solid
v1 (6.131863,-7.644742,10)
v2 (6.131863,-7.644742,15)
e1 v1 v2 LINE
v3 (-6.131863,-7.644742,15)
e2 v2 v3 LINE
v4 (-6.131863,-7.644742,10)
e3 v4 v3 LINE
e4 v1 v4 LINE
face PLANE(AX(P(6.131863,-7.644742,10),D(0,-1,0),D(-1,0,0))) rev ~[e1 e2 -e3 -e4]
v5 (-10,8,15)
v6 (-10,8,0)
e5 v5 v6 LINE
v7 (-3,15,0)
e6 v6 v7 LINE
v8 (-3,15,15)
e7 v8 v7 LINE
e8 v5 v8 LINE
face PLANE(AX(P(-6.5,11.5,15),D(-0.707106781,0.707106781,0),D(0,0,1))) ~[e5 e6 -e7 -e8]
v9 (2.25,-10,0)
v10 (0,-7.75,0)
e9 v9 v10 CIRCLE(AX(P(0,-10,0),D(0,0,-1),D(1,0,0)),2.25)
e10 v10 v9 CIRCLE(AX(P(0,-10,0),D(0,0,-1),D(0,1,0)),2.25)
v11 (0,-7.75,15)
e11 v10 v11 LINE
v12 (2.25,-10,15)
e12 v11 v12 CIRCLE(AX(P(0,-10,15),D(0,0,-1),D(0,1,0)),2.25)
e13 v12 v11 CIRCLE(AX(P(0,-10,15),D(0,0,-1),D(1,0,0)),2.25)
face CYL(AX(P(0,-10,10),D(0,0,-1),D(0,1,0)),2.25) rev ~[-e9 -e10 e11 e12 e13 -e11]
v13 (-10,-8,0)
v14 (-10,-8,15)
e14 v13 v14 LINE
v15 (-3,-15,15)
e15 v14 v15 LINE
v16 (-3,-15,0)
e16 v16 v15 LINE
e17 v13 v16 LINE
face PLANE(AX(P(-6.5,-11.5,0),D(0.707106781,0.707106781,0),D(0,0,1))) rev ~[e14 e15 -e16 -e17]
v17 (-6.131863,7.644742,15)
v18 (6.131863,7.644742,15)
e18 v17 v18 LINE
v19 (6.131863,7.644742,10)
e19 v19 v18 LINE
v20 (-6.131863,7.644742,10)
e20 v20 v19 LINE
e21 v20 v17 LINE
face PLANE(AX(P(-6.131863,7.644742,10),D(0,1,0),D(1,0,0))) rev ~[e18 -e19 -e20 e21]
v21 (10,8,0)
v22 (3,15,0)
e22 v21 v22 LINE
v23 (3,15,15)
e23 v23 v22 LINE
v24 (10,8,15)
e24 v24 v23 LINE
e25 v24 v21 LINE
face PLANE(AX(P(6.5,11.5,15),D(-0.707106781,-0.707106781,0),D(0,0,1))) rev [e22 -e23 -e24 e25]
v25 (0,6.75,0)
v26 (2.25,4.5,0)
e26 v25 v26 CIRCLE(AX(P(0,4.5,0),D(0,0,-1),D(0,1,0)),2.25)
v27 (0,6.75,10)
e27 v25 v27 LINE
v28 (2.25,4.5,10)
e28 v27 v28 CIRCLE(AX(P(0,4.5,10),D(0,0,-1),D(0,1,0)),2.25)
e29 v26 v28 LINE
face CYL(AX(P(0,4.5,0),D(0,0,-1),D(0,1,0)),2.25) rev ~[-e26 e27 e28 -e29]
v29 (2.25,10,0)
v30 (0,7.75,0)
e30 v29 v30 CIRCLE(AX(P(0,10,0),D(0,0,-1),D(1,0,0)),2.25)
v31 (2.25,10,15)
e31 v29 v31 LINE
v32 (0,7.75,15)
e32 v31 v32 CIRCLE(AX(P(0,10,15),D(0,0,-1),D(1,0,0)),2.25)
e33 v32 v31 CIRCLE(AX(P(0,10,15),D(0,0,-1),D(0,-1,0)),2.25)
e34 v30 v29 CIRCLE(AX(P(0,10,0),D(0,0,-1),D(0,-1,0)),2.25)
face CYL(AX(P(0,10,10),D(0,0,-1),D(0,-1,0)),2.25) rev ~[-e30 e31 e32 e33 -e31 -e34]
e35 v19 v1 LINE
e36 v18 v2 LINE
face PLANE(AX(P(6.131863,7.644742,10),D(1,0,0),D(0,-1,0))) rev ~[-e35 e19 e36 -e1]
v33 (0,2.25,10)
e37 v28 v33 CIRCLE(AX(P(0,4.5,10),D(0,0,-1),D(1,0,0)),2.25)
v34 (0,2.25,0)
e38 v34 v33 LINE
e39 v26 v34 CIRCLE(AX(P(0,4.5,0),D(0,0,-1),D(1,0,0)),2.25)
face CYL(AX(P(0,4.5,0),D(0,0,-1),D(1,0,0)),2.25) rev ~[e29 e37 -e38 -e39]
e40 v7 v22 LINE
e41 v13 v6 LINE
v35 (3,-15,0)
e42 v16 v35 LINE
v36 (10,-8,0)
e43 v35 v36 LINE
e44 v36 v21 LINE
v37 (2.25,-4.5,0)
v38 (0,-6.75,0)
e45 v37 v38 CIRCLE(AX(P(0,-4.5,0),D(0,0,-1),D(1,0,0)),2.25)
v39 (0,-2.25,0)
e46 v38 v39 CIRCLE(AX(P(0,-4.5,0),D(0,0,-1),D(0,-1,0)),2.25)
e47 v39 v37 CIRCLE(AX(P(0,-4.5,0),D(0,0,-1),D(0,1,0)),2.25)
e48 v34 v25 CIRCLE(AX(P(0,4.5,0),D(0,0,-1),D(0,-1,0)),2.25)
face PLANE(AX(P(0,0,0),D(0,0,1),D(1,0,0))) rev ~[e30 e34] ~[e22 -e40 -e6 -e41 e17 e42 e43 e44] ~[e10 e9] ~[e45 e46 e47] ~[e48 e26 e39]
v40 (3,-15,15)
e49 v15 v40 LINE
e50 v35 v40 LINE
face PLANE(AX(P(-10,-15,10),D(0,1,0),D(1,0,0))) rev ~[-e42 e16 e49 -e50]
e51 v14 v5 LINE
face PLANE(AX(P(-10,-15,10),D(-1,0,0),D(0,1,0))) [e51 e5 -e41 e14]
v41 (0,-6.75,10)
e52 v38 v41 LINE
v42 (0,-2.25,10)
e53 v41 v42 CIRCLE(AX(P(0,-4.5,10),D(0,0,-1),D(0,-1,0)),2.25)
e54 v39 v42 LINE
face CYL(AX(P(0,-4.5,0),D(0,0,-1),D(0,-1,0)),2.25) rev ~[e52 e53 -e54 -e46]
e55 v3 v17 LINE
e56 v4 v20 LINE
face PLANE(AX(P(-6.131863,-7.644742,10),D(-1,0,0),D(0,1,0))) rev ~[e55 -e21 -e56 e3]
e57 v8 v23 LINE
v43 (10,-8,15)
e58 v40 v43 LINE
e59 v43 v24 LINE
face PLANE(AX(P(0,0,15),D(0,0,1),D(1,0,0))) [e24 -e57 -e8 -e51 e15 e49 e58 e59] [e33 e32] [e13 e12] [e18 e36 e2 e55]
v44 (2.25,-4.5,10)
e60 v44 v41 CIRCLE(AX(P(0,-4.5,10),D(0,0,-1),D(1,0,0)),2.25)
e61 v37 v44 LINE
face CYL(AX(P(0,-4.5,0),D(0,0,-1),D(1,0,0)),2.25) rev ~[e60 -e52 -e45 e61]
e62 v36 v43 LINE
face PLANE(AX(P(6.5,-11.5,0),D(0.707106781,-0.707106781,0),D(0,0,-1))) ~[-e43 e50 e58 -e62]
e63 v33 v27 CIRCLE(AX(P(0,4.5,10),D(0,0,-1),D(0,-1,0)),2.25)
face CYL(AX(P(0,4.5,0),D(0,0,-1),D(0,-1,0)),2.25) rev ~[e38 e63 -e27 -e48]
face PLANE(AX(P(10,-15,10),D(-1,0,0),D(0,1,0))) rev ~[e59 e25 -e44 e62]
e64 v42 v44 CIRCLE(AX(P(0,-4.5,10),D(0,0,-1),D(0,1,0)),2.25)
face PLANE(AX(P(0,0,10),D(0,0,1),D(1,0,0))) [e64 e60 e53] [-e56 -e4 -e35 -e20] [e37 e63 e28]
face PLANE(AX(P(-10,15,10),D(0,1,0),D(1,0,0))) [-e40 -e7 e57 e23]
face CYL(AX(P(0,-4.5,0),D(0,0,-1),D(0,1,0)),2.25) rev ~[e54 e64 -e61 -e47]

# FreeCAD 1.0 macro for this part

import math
import FreeCAD as App
import Part
import Sketcher
Q = App.Units.Quantity


def edges_at(feature, points):
    """Names of the edges that pass closest to the given points."""
    edges = feature.Shape.Edges
    near = lambda p: min(range(len(edges)), key=lambda i: edges[i].distToShape(Part.Vertex(*p))[0])
    return sorted({f"Edge{near(p) + 1}" for p in points})

doc = App.newDocument("Part")
body = doc.addObject("PartDesign::Body", "Body")

# Sketch on XY plane
sketch1 = body.newObject("Sketcher::SketchObject", "Sketch")
sketch1.AttachmentSupport = (doc.getObject("XY_Plane"), [""])
sketch1.MapMode = "FlatFace"
sketch1.addGeometry(Part.LineSegment(App.Vector(-10, 15, 0), App.Vector(-10, -15, 0)), False)
sketch1.addGeometry(Part.LineSegment(App.Vector(-10, -15, 0), App.Vector(10, -15, 0)), False)
sketch1.addGeometry(Part.LineSegment(App.Vector(10, -15, 0), App.Vector(10, 15, 0)), False)
sketch1.addGeometry(Part.LineSegment(App.Vector(10, 15, 0), App.Vector(-10, 15, 0)), False)
sketch1.addGeometry(Part.ArcOfCircle(Part.Circle(App.Vector(0, -10, 0), App.Vector(0, 0, 1), 2.2), math.radians(0), math.radians(90)), False)
sketch1.addGeometry(Part.ArcOfCircle(Part.Circle(App.Vector(0, -10, 0), App.Vector(0, 0, 1), 2.2), math.radians(90), math.radians(360)), False)
sketch1.addGeometry(Part.ArcOfCircle(Part.Circle(App.Vector(0, -4.5, 0), App.Vector(0, 0, 1), 2.2), math.radians(-90), math.radians(0)), False)
sketch1.addGeometry(Part.ArcOfCircle(Part.Circle(App.Vector(0, -4.5, 0), App.Vector(0, 0, 1), 2.2), math.radians(90), math.radians(270)), False)
sketch1.addGeometry(Part.ArcOfCircle(Part.Circle(App.Vector(0, -4.5, 0), App.Vector(0, 0, 1), 2.2), math.radians(0), math.radians(90)), False)
sketch1.addGeometry(Part.ArcOfCircle(Part.Circle(App.Vector(0, 10, 0), App.Vector(0, 0, 1), 2.2), math.radians(0), math.radians(270)), False)
sketch1.addGeometry(Part.ArcOfCircle(Part.Circle(App.Vector(0, 10, 0), App.Vector(0, 0, 1), 2.2), math.radians(-90), math.radians(0)), False)
sketch1.addGeometry(Part.ArcOfCircle(Part.Circle(App.Vector(0, 4.5, 0), App.Vector(0, 0, 1), 2.2), math.radians(0), math.radians(90)), False)
sketch1.addGeometry(Part.ArcOfCircle(Part.Circle(App.Vector(0, 4.5, 0), App.Vector(0, 0, 1), 2.2), math.radians(-90), math.radians(0)), False)
sketch1.addGeometry(Part.ArcOfCircle(Part.Circle(App.Vector(0, 4.5, 0), App.Vector(0, 0, 1), 2.2), math.radians(90), math.radians(270)), False)
sketch1.addConstraint(Sketcher.Constraint("Coincident", 0, 2, 1, 1))
sketch1.addConstraint(Sketcher.Constraint("Coincident", 1, 2, 2, 1))
sketch1.addConstraint(Sketcher.Constraint("Coincident", 2, 2, 3, 1))
sketch1.addConstraint(Sketcher.Constraint("Coincident", 3, 2, 0, 1))
sketch1.addConstraint(Sketcher.Constraint("Tangent", 4, 1, 5, 2))
sketch1.addConstraint(Sketcher.Constraint("Coincident", 5, 1, 4, 2))
sketch1.addConstraint(Sketcher.Constraint("Tangent", 6, 1, 7, 2))
sketch1.addConstraint(Sketcher.Constraint("Tangent", 7, 1, 8, 2))
sketch1.addConstraint(Sketcher.Constraint("Tangent", 8, 1, 6, 2))
sketch1.addConstraint(Sketcher.Constraint("Tangent", 9, 1, 10, 2))
sketch1.addConstraint(Sketcher.Constraint("Coincident", 10, 1, 9, 2))
sketch1.addConstraint(Sketcher.Constraint("Tangent", 11, 1, 12, 2))
sketch1.addConstraint(Sketcher.Constraint("Tangent", 12, 1, 13, 2))
sketch1.addConstraint(Sketcher.Constraint("Tangent", 13, 1, 11, 2))
sketch1.addConstraint(Sketcher.Constraint("Vertical", 0))
sketch1.addConstraint(Sketcher.Constraint("Horizontal", 1))
sketch1.addConstraint(Sketcher.Constraint("Vertical", 2))
sketch1.addConstraint(Sketcher.Constraint("Horizontal", 3))
sketch1.addConstraint(Sketcher.Constraint("Equal", 5, 6))
sketch1.addConstraint(Sketcher.Constraint("Equal", 8, 9))
sketch1.addConstraint(Sketcher.Constraint("Equal", 10, 11))
sketch1.addConstraint(Sketcher.Constraint("Symmetric", 4, 3, 9, 3, -1, 1))
sketch1.addConstraint(Sketcher.Constraint("Symmetric", 6, 3, 11, 3, -1, 1))
sketch1.addConstraint(Sketcher.Constraint("Symmetric", 0, 2, 2, 2, -1, 1))
sketch1.addConstraint(Sketcher.Constraint("Symmetric", 4, 1, 9, 1, -1))
sketch1.addConstraint(Sketcher.Constraint("Symmetric", 8, 1, 11, 1, -1))
sketch1.addConstraint(Sketcher.Constraint("PointOnObject", 5, 1, -2))
sketch1.addConstraint(Sketcher.Constraint("PointOnObject", 6, 1, -2))
sketch1.addConstraint(Sketcher.Constraint("PointOnObject", 7, 1, -2))
sketch1.addConstraint(Sketcher.Constraint("PointOnObject", 10, 1, -2))
sketch1.addConstraint(Sketcher.Constraint("PointOnObject", 12, 1, -2))
sketch1.addConstraint(Sketcher.Constraint("PointOnObject", 13, 1, -2))
sketch1.addConstraint(Sketcher.Constraint("Horizontal", 5, 3, 4, 1))
sketch1.addConstraint(Sketcher.Constraint("Horizontal", 7, 3, 8, 1))
sketch1.addConstraint(Sketcher.Constraint("DistanceX", 1, 1, 1, 2, Q("20 mm")))
sketch1.addConstraint(Sketcher.Constraint("DistanceY", 0, 2, 0, 1, Q("30 mm")))
sketch1.addConstraint(Sketcher.Constraint("Radius", 4, Q("2.25 mm")))
sketch1.addConstraint(Sketcher.Constraint("DistanceY", 4, 3, -1, 1, Q("10 mm")))
sketch1.addConstraint(Sketcher.Constraint("DistanceY", 6, 3, 11, 3, Q("9 mm")))
pad1 = body.newObject("PartDesign::Pad", "Pad")
pad1.Profile = sketch1
pad1.Length = 10

# Sketch on XY plane
sketch2 = body.newObject("Sketcher::SketchObject", "Sketch001")
sketch2.AttachmentSupport = (doc.getObject("XY_Plane"), [""])
sketch2.MapMode = "FlatFace"
sketch2.AttachmentOffset = App.Placement(App.Vector(0, 0, 10), App.Rotation())
sketch2.addGeometry(Part.LineSegment(App.Vector(-10, 15, 0), App.Vector(-10, -15, 0)), False)
sketch2.addGeometry(Part.LineSegment(App.Vector(-10, -15, 0), App.Vector(10, -15, 0)), False)
sketch2.addGeometry(Part.LineSegment(App.Vector(10, -15, 0), App.Vector(10, 15, 0)), False)
sketch2.addGeometry(Part.LineSegment(App.Vector(10, 15, 0), App.Vector(-10, 15, 0)), False)
sketch2.addGeometry(Part.ArcOfCircle(Part.Circle(App.Vector(0, -10, 0), App.Vector(0, 0, 1), 2.2), math.radians(0), math.radians(90)), False)
sketch2.addGeometry(Part.ArcOfCircle(Part.Circle(App.Vector(0, -10, 0), App.Vector(0, 0, 1), 2.2), math.radians(90), math.radians(360)), False)
sketch2.addGeometry(Part.LineSegment(App.Vector(-6.1, 7.6, 0), App.Vector(6.1, 7.6, 0)), False)
sketch2.addGeometry(Part.LineSegment(App.Vector(6.1, 7.6, 0), App.Vector(6.1, -7.6, 0)), False)
sketch2.addGeometry(Part.LineSegment(App.Vector(6.1, -7.6, 0), App.Vector(-6.1, -7.6, 0)), False)
sketch2.addGeometry(Part.LineSegment(App.Vector(-6.1, -7.6, 0), App.Vector(-6.1, 7.6, 0)), False)
sketch2.addGeometry(Part.ArcOfCircle(Part.Circle(App.Vector(0, 10, 0), App.Vector(0, 0, 1), 2.2), math.radians(0), math.radians(270)), False)
sketch2.addGeometry(Part.ArcOfCircle(Part.Circle(App.Vector(0, 10, 0), App.Vector(0, 0, 1), 2.2), math.radians(-90), math.radians(0)), False)
sketch2.addConstraint(Sketcher.Constraint("Coincident", 0, 2, 1, 1))
sketch2.addConstraint(Sketcher.Constraint("Coincident", 1, 2, 2, 1))
sketch2.addConstraint(Sketcher.Constraint("Coincident", 2, 2, 3, 1))
sketch2.addConstraint(Sketcher.Constraint("Coincident", 3, 2, 0, 1))
sketch2.addConstraint(Sketcher.Constraint("Tangent", 4, 1, 5, 2))
sketch2.addConstraint(Sketcher.Constraint("Coincident", 5, 1, 4, 2))
sketch2.addConstraint(Sketcher.Constraint("Coincident", 6, 2, 7, 1))
sketch2.addConstraint(Sketcher.Constraint("Coincident", 7, 2, 8, 1))
sketch2.addConstraint(Sketcher.Constraint("Coincident", 8, 2, 9, 1))
sketch2.addConstraint(Sketcher.Constraint("Coincident", 9, 2, 6, 1))
sketch2.addConstraint(Sketcher.Constraint("Tangent", 10, 1, 11, 2))
sketch2.addConstraint(Sketcher.Constraint("Coincident", 11, 1, 10, 2))
sketch2.addConstraint(Sketcher.Constraint("Vertical", 0))
sketch2.addConstraint(Sketcher.Constraint("Horizontal", 1))
sketch2.addConstraint(Sketcher.Constraint("Vertical", 2))
sketch2.addConstraint(Sketcher.Constraint("Horizontal", 3))
sketch2.addConstraint(Sketcher.Constraint("Horizontal", 6))
sketch2.addConstraint(Sketcher.Constraint("Vertical", 7))
sketch2.addConstraint(Sketcher.Constraint("Horizontal", 8))
sketch2.addConstraint(Sketcher.Constraint("Vertical", 9))
sketch2.addConstraint(Sketcher.Constraint("Equal", 5, 10))
sketch2.addConstraint(Sketcher.Constraint("Symmetric", 4, 3, 10, 3, -1, 1))
sketch2.addConstraint(Sketcher.Constraint("Symmetric", 0, 2, 2, 2, -1, 1))
sketch2.addConstraint(Sketcher.Constraint("Symmetric", 6, 2, 8, 2, -1, 1))
sketch2.addConstraint(Sketcher.Constraint("Symmetric", 4, 1, 10, 1, -1))
sketch2.addConstraint(Sketcher.Constraint("PointOnObject", 5, 1, -2))
sketch2.addConstraint(Sketcher.Constraint("PointOnObject", 11, 1, -2))
sketch2.addConstraint(Sketcher.Constraint("Horizontal", 5, 3, 4, 1))
sketch2.addConstraint(Sketcher.Constraint("DistanceX", 1, 1, 1, 2, Q("20 mm")))
sketch2.addConstraint(Sketcher.Constraint("DistanceY", 0, 2, 0, 1, Q("30 mm")))
sketch2.addConstraint(Sketcher.Constraint("Radius", 4, Q("2.25 mm")))
sketch2.addConstraint(Sketcher.Constraint("DistanceY", 4, 3, -1, 1, Q("10 mm")))
sketch2.addConstraint(Sketcher.Constraint("DistanceX", 6, 1, 6, 2, Q("12.263726 mm")))
sketch2.addConstraint(Sketcher.Constraint("DistanceY", 7, 2, 7, 1, Q("15.289485 mm")))
pad2 = body.newObject("PartDesign::Pad", "Pad001")
pad2.Profile = sketch2
pad2.Length = 5
doc.recompute()

chamfer = body.newObject("PartDesign::Chamfer", "Chamfer")
chamfer.Base = (pad2, edges_at(pad2, [
    (-10, 15, 7.5),
    (-10, -15, 7.5),
    (10, 15, 7.5),
    (10, -15, 7.5),
]))
chamfer.Size = 7

doc.recompute()
